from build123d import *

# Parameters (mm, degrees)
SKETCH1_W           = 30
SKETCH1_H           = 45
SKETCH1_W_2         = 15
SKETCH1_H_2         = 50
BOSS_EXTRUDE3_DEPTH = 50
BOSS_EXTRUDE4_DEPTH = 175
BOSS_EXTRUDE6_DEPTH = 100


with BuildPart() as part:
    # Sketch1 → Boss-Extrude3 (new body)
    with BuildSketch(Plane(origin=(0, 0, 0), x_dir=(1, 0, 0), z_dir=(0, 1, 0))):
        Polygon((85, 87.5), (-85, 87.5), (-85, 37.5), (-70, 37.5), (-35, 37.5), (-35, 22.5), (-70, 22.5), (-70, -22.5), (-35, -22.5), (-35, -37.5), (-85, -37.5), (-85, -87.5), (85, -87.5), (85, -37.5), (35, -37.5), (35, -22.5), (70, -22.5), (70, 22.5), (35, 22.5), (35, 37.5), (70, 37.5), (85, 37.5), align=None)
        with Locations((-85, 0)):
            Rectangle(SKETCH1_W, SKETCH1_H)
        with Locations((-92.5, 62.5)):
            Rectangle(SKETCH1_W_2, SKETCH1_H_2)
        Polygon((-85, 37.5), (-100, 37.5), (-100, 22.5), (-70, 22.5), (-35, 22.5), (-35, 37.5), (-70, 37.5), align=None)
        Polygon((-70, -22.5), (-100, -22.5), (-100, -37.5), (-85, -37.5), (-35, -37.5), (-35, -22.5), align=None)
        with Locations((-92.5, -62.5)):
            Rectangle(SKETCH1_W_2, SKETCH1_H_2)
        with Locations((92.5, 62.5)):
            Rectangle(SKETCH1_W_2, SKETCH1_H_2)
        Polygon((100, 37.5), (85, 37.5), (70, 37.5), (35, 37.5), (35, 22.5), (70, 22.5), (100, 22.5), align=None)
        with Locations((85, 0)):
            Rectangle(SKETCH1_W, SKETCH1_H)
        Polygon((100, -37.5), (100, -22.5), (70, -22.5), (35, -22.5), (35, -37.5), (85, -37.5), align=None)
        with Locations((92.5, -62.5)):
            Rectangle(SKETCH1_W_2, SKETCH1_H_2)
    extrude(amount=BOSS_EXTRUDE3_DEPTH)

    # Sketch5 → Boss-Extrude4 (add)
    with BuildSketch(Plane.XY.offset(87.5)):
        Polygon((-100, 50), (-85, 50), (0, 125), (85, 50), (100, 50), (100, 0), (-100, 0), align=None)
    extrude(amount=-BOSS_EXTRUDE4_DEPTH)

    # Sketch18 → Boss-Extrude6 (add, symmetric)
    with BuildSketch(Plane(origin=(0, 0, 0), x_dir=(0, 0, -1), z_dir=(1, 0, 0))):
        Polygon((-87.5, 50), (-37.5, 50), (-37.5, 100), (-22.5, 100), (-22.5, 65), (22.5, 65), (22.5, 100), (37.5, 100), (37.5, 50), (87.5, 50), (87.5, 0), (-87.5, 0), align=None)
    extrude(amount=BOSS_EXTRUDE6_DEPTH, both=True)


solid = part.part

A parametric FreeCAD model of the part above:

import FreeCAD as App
import Part
import Sketcher

V = App.Vector
Q = App.Units.Quantity


def add_polygon(sketch, points):
    """Adds a closed chain of lines whose ends are joined by coincident constraints."""
    first, n = sketch.GeometryCount, len(points)
    for a, b in zip(points, points[1:] + points[:1]):
        sketch.addGeometry(Part.LineSegment(App.Vector(*a, 0), App.Vector(*b, 0)), False)
    for i in range(n):
        sketch.addConstraint(Sketcher.Constraint("Coincident", first + i, 2, first + (i + 1) % n, 1))

doc = App.newDocument("Part")
body = doc.addObject("PartDesign::Body", "Body")

sketch1 = body.newObject("Sketcher::SketchObject", "Sketch")
sketch1.AttachmentSupport = (doc.getObject("XZ_Plane"), [""])
sketch1.MapMode = "FlatFace"
add_polygon(sketch1, [(-100, -88), (-100, 88), (100, 88), (100, -88)])
sketch1.addConstraint(Sketcher.Constraint("Vertical", 0))
sketch1.addConstraint(Sketcher.Constraint("Horizontal", 1))
sketch1.addConstraint(Sketcher.Constraint("Vertical", 2))
sketch1.addConstraint(Sketcher.Constraint("Horizontal", 3))
sketch1.addConstraint(Sketcher.Constraint("Symmetric", 0, 2, 2, 2, -1, 1))
sketch1.addConstraint(Sketcher.Constraint("DistanceX", 1, 1, 1, 2, Q("200 mm")))
sketch1.addConstraint(Sketcher.Constraint("DistanceY", 0, 1, 0, 2, Q("175 mm")))
pad1 = body.newObject("PartDesign::Pad", "Pad")
pad1.Profile = sketch1
pad1.Length = 50
pad1.Reversed = True

sketch2 = body.newObject("Sketcher::SketchObject", "Sketch001")
sketch2.AttachmentSupport = (doc.getObject("XY_Plane"), [""])
sketch2.MapMode = "FlatFace"
sketch2.AttachmentOffset = App.Placement(V(0, 0, 87.5), App.Rotation())
add_polygon(sketch2, [(-85, 50), (-100, 50), (-100, 0), (100, 0), (100, 50), (85, 50), (0, 125)])
sketch2.addConstraint(Sketcher.Constraint("Horizontal", 0))
sketch2.addConstraint(Sketcher.Constraint("Vertical", 1))
sketch2.addConstraint(Sketcher.Constraint("Horizontal", 2))
sketch2.addConstraint(Sketcher.Constraint("Vertical", 3))
sketch2.addConstraint(Sketcher.Constraint("Horizontal", 4))
sketch2.addConstraint(Sketcher.Constraint("Symmetric", 1, 2, 2, 2, -1, 1))
sketch2.addConstraint(Sketcher.Constraint("Symmetric", 4, 2, 6, 2, -2))
sketch2.addConstraint(Sketcher.Constraint("PointOnObject", 5, 2, -2))
sketch2.addConstraint(Sketcher.Constraint("DistanceX", 0, 2, 0, 1, Q("15 mm")))
sketch2.addConstraint(Sketcher.Constraint("DistanceX", 2, 1, 2, 2, Q("200 mm")))
sketch2.addConstraint(Sketcher.Constraint("DistanceY", 1, 2, 1, 1, Q("50 mm")))
sketch2.addConstraint(Sketcher.Constraint("DistanceY", -1, 1, 5, 2, Q("125 mm")))
pad2 = body.newObject("PartDesign::Pad", "Pad001")
pad2.Profile = sketch2
pad2.Length = 175
pad2.Reversed = True

sketch3 = body.newObject("Sketcher::SketchObject", "Sketch002")
sketch3.AttachmentSupport = (doc.getObject("YZ_Plane"), [""])
sketch3.MapMode = "FlatFace"
add_polygon(sketch3, [(50, 38), (50, 88), (0, 88), (0, -88), (50, -88), (50, -38), (100, -38), (100, -22), (65, -22), (65, 22), (100, 22), (100, 38)])
sketch3.addConstraint(Sketcher.Constraint("Vertical", 0))
sketch3.addConstraint(Sketcher.Constraint("Horizontal", 1))
sketch3.addConstraint(Sketcher.Constraint("Vertical", 2))
sketch3.addConstraint(Sketcher.Constraint("Horizontal", 3))
sketch3.addConstraint(Sketcher.Constraint("Vertical", 4))
sketch3.addConstraint(Sketcher.Constraint("Horizontal", 5))
sketch3.addConstraint(Sketcher.Constraint("Vertical", 6))
sketch3.addConstraint(Sketcher.Constraint("Horizontal", 7))
sketch3.addConstraint(Sketcher.Constraint("Vertical", 8))
sketch3.addConstraint(Sketcher.Constraint("Horizontal", 9))
sketch3.addConstraint(Sketcher.Constraint("Vertical", 10))
sketch3.addConstraint(Sketcher.Constraint("Horizontal", 11))
sketch3.addConstraint(Sketcher.Constraint("Symmetric", 1, 2, 2, 2, -1, 1))
sketch3.addConstraint(Sketcher.Constraint("Symmetric", 6, 2, 9, 2, -1))
sketch3.addConstraint(Sketcher.Constraint("Symmetric", 4, 2, 11, 2, -1))
sketch3.addConstraint(Sketcher.Constraint("Equal", 3, 5))
sketch3.addConstraint(Sketcher.Constraint("Equal", 11, 0))
sketch3.addConstraint(Sketcher.Constraint("DistanceX", 1, 2, 1, 1, Q("50 mm")))
sketch3.addConstraint(Sketcher.Constraint("DistanceX", 7, 2, 7, 1, Q("35 mm")))
sketch3.addConstraint(Sketcher.Constraint("DistanceY", 2, 2, 2, 1, Q("175 mm")))
sketch3.addConstraint(Sketcher.Constraint("DistanceY", 6, 1, 6, 2, Q("15 mm")))
pad3 = body.newObject("PartDesign::Pad", "Pad002")
pad3.Profile = sketch3
pad3.Length = 200
pad3.Midplane = True

doc.recompute()
